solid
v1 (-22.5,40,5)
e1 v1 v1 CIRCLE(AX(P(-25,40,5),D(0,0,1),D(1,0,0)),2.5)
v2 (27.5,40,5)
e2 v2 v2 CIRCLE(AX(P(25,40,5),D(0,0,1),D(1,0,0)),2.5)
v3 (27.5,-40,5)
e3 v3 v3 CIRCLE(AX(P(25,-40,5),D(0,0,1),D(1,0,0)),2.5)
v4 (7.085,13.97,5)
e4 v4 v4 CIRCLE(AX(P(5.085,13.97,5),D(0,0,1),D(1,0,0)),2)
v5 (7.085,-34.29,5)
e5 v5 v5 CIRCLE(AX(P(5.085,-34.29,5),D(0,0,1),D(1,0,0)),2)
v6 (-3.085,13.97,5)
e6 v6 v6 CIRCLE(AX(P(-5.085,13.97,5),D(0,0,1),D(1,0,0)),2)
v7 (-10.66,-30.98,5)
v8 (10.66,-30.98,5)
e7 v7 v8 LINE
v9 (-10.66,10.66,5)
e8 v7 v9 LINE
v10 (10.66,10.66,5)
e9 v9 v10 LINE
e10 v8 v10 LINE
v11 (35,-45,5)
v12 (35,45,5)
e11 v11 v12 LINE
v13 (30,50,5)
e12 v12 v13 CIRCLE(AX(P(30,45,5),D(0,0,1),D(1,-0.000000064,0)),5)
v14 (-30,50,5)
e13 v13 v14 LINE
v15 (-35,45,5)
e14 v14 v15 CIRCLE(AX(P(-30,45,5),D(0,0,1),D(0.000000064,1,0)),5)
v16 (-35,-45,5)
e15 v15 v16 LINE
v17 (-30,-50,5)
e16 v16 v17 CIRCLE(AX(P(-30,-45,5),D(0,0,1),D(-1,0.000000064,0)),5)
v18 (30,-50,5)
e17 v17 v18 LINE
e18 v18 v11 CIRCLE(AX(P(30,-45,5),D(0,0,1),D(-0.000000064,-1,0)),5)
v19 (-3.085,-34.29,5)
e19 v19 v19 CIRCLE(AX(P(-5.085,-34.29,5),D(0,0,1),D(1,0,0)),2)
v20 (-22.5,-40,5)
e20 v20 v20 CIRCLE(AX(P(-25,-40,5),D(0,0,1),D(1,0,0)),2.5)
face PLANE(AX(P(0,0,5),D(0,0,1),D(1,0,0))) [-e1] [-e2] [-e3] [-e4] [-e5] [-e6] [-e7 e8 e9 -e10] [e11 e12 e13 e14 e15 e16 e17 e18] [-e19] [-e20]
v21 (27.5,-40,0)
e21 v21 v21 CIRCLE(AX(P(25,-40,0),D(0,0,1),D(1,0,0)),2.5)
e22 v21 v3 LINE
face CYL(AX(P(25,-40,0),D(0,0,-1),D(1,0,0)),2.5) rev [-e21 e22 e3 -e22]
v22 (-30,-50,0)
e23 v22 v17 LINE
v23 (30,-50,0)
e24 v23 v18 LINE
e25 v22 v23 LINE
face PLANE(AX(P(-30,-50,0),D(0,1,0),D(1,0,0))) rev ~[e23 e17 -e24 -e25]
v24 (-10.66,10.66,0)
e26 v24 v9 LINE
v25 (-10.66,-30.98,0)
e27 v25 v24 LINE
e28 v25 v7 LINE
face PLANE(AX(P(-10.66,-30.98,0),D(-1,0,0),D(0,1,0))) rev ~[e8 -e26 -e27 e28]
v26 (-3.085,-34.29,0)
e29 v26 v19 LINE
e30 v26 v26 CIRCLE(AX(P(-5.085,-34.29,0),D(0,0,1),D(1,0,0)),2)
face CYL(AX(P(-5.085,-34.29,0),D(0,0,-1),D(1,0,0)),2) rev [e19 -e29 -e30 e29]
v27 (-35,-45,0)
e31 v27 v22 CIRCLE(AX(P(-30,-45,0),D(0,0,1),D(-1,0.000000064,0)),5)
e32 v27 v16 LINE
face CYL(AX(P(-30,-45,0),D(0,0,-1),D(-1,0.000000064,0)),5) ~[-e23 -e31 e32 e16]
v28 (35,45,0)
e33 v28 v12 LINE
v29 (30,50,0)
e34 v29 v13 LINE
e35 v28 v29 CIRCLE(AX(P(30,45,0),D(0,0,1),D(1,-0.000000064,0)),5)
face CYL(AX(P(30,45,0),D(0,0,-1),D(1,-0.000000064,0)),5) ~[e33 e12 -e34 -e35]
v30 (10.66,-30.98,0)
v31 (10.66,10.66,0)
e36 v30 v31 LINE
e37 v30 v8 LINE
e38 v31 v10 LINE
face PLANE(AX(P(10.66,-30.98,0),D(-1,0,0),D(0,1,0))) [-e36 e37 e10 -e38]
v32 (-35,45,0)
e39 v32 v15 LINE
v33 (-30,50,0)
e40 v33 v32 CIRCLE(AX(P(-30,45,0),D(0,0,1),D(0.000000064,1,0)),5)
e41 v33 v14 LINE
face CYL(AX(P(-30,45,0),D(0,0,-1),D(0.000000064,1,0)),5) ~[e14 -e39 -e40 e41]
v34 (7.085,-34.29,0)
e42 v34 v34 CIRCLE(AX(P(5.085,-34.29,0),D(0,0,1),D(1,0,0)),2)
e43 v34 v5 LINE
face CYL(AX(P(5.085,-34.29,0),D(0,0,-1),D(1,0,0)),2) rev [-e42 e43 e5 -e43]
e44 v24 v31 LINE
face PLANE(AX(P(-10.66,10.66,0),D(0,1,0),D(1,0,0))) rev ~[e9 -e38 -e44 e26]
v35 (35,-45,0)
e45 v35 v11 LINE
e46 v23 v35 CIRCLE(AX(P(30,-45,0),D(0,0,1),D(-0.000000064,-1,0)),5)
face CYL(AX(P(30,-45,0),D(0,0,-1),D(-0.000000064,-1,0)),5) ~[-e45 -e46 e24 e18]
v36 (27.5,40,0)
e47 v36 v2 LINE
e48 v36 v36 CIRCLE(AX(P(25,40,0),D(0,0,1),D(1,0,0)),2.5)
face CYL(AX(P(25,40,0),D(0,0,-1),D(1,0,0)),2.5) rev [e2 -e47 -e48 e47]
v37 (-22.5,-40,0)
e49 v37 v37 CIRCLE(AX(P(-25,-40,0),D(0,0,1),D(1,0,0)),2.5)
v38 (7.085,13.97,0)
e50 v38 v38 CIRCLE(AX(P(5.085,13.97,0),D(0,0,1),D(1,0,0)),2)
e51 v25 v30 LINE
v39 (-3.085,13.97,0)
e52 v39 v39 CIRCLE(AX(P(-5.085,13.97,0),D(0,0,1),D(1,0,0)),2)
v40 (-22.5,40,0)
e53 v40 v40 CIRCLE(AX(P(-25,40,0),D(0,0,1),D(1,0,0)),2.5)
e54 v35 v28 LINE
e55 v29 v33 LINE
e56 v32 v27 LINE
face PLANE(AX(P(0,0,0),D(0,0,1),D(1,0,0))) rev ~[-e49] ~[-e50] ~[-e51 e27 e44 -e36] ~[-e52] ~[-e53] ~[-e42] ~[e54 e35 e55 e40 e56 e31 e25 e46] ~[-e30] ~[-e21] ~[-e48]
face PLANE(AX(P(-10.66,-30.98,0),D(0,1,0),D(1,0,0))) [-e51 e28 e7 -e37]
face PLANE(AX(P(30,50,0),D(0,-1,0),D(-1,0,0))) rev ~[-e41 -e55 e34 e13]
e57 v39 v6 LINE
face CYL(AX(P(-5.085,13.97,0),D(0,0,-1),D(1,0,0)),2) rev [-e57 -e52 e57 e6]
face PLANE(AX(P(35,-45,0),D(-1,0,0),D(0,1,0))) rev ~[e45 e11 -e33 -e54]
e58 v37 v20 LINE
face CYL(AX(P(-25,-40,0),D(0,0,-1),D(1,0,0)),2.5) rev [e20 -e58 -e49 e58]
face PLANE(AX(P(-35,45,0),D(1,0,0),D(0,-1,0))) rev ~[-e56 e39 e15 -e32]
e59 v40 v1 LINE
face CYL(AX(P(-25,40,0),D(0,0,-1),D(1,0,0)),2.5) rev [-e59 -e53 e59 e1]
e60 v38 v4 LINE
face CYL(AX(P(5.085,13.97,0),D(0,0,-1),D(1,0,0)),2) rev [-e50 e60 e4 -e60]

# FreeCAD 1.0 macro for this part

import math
import FreeCAD as App
import Part
import Sketcher

doc = App.newDocument("Part")
params = doc.addObject("Spreadsheet::Sheet", "Params")
for row, (alias, value) in enumerate([
    ("sketch1_diameter", "5 mm"),
    ("sketch1_diameter2", "4 mm"),
    ("sketch1_radius", "5 mm"),
    ("sketch1_width", "60 mm"),
    ("sketch1_height", "90 mm"),
    ("pad1_length", "5 mm"),
], start=1):
    params.set(f"A{row}", alias)
    params.set(f"B{row}", "=" + value)
    params.setAlias(f"B{row}", alias)

body = doc.addObject("PartDesign::Body", "Body")

# Sketch on XY plane
sketch1 = doc.addObject("Sketcher::SketchObject", "Sketch")
body.addObject(sketch1)
sketch1.AttachmentSupport = (doc.XY_Plane, [""])
sketch1.MapMode = "FlatFace"
sketch1.addGeometry([
    Part.LineSegment(App.Vector(30, 50, 0), App.Vector(-30, 50, 0)),  # 0
    Part.ArcOfCircle(Part.Circle(App.Vector(-30, 45, 0), App.Vector(0, 0, 1), 5), math.radians(89.999996), math.radians(180.000004)),  # 1
    Part.LineSegment(App.Vector(-35, 45, 0), App.Vector(-35, -45, 0)),  # 2
    Part.ArcOfCircle(Part.Circle(App.Vector(-30, -45, 0), App.Vector(0, 0, 1), 5), math.radians(179.999996), math.radians(270.000004)),  # 3
    Part.LineSegment(App.Vector(-30, -50, 0), App.Vector(30, -50, 0)),  # 4
    Part.ArcOfCircle(Part.Circle(App.Vector(30, -45, 0), App.Vector(0, 0, 1), 5), math.radians(-90.000004), math.radians(0.000004)),  # 5
    Part.LineSegment(App.Vector(35, -45, 0), App.Vector(35, 45, 0)),  # 6
    Part.ArcOfCircle(Part.Circle(App.Vector(30, 45, 0), App.Vector(0, 0, 1), 5), math.radians(-0.000004), math.radians(90.000004)),  # 7
    Part.Circle(App.Vector(-25, -40, 0), App.Vector(0, 0, 1), 2.5),  # 8
    Part.Circle(App.Vector(-5.085, -34.29, 0), App.Vector(0, 0, 1), 2),  # 9
    Part.Circle(App.Vector(5.085, -34.29, 0), App.Vector(0, 0, 1), 2),  # 10
    Part.Circle(App.Vector(25, -40, 0), App.Vector(0, 0, 1), 2.5),  # 11
    Part.LineSegment(App.Vector(10.66, -30.98, 0), App.Vector(-10.66, -30.98, 0)),  # 12
    Part.LineSegment(App.Vector(-10.66, -30.98, 0), App.Vector(-10.66, 10.66, 0)),  # 13
    Part.LineSegment(App.Vector(-10.66, 10.66, 0), App.Vector(10.66, 10.66, 0)),  # 14
    Part.LineSegment(App.Vector(10.66, 10.66, 0), App.Vector(10.66, -30.98, 0)),  # 15
    Part.Circle(App.Vector(-5.085, 13.97, 0), App.Vector(0, 0, 1), 2),  # 16
    Part.Circle(App.Vector(-25, 40, 0), App.Vector(0, 0, 1), 2.5),  # 17
    Part.Circle(App.Vector(5.085, 13.97, 0), App.Vector(0, 0, 1), 2),  # 18
    Part.Circle(App.Vector(25, 40, 0), App.Vector(0, 0, 1), 2.5),  # 19
], False)
sketch1.addConstraint([
    Sketcher.Constraint("Tangent", 0, 2, 1, 1),
    Sketcher.Constraint("Tangent", 1, 2, 2, 1),
    Sketcher.Constraint("Tangent", 2, 2, 3, 1),
    Sketcher.Constraint("Tangent", 3, 2, 4, 1),
    Sketcher.Constraint("Tangent", 4, 2, 5, 1),
    Sketcher.Constraint("Tangent", 5, 2, 6, 1),
    Sketcher.Constraint("Tangent", 6, 2, 7, 1),
    Sketcher.Constraint("Tangent", 7, 2, 0, 1),
    Sketcher.Constraint("Coincident", 12, 2, 13, 1),
    Sketcher.Constraint("Coincident", 13, 2, 14, 1),
    Sketcher.Constraint("Coincident", 14, 2, 15, 1),
    Sketcher.Constraint("Coincident", 15, 2, 12, 1),
    Sketcher.Constraint("Horizontal", 0),
    Sketcher.Constraint("Vertical", 2),
    Sketcher.Constraint("Horizontal", 4),
    Sketcher.Constraint("Vertical", 6),
    Sketcher.Constraint("Horizontal", 12),
    Sketcher.Constraint("Vertical", 13),
    Sketcher.Constraint("Horizontal", 14),
    Sketcher.Constraint("Vertical", 15),
    Sketcher.Constraint("Equal", 1, 3),
    Sketcher.Constraint("Equal", 3, 5),
    Sketcher.Constraint("Equal", 5, 7),
    Sketcher.Constraint("Equal", 9, 10),
    Sketcher.Constraint("Equal", 8, 11),
    Sketcher.Constraint("Equal", 10, 16),
    Sketcher.Constraint("Equal", 11, 17),
    Sketcher.Constraint("Equal", 16, 18),
    Sketcher.Constraint("Equal", 17, 19),
    Sketcher.Constraint("Symmetric", 1, 3, 5, 3, -1, 1),
    Sketcher.Constraint("Symmetric", 11, 3, 17, 3, -1, 1),
    Sketcher.Constraint("Symmetric", 8, 3, 19, 3, -1, 1),
    Sketcher.Constraint("Symmetric", 9, 3, 10, 3, -2),
    Sketcher.Constraint("Symmetric", 8, 3, 11, 3, -2),
    Sketcher.Constraint("Symmetric", 16, 3, 18, 3, -2),
    Sketcher.Constraint("Vertical", 9, 3, 16, 3),
    Sketcher.Constraint("Diameter", 8, 5.0),
    Sketcher.Constraint("Diameter", 9, 4.0),
    Sketcher.Constraint("Radius", 1, 5.0),
    Sketcher.Constraint("DistanceX", 0, 2, 0, 1, 60.0),
    Sketcher.Constraint("DistanceY", 2, 2, 2, 1, 90.0),
    Sketcher.Constraint("DistanceX", 8, 3, -1, 1, 25.0),
    Sketcher.Constraint("DistanceY", 8, 3, -1, 1, 40.0),
    Sketcher.Constraint("DistanceX", 12, 2, 12, 1, 21.32),
    Sketcher.Constraint("DistanceY", 13, 1, 13, 2, 41.64),
    Sketcher.Constraint("DistanceY", 9, 3, -1, 1, 34.29),
    Sketcher.Constraint("DistanceY", -1, 1, 16, 3, 13.97),
    Sketcher.Constraint("DistanceX", 12, 2, -1, 1, 10.66),
    Sketcher.Constraint("DistanceY", 12, 2, -1, 1, 30.98),
    Sketcher.Constraint("DistanceX", 9, 3, 10, 3, 10.17),
])
sketch1.setExpression("Constraints[36]", "Params.sketch1_diameter")
sketch1.setExpression("Constraints[37]", "Params.sketch1_diameter2")
sketch1.setExpression("Constraints[38]", "Params.sketch1_radius")
sketch1.setExpression("Constraints[39]", "Params.sketch1_width")
sketch1.setExpression("Constraints[40]", "Params.sketch1_height")
pad1 = doc.addObject("PartDesign::Pad", "Pad")
body.addObject(pad1)
pad1.Profile = sketch1
pad1.setExpression("Length", "Params.pad1_length")

doc.recompute()
